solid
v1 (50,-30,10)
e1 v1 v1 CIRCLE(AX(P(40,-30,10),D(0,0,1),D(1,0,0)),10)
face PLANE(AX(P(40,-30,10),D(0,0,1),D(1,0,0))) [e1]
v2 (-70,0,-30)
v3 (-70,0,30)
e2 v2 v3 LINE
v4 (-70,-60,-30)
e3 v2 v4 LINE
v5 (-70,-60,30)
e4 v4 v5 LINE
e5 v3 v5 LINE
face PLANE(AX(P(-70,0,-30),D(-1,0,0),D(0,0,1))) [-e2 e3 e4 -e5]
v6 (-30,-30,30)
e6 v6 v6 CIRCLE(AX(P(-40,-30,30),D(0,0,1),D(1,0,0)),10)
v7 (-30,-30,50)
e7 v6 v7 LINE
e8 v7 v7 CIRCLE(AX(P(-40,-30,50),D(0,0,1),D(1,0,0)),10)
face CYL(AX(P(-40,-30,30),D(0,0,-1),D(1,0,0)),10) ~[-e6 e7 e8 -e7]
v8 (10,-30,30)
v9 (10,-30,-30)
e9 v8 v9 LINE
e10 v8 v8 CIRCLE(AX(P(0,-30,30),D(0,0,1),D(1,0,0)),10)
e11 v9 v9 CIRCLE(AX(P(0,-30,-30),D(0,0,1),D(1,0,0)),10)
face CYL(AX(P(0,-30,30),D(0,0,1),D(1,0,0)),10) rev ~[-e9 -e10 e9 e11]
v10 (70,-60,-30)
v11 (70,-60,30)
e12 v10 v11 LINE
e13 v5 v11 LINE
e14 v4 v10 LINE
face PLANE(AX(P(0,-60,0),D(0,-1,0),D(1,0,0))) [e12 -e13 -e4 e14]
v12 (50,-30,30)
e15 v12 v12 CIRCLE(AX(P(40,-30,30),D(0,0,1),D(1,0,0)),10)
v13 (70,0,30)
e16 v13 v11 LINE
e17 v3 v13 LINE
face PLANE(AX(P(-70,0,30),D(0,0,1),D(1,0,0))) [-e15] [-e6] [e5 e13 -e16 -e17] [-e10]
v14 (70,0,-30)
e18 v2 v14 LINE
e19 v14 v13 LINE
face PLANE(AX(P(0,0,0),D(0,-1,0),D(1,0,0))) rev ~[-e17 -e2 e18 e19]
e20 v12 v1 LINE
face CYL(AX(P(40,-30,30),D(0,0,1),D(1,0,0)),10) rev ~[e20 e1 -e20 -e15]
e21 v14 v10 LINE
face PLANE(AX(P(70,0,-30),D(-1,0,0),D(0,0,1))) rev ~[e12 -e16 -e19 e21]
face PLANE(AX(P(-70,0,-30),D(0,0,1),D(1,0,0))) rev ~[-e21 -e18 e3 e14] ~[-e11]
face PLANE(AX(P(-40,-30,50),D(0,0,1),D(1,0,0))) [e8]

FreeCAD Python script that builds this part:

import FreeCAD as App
import Part
import Sketcher

doc = App.newDocument("Part")
body = doc.addObject("PartDesign::Body", "Body")

# Sketch on XZ plane
sketch1 = body.newObject("Sketcher::SketchObject", "Sketch")
sketch1.AttachmentSupport = (doc.getObject("XZ_Plane"), [""])
sketch1.MapMode = "FlatFace"
sketch1.addGeometry([
    Part.LineSegment(App.Vector(-70, 30, 0), App.Vector(-70, -30, 0)),
    Part.LineSegment(App.Vector(-70, -30, 0), App.Vector(70, -30, 0)),
    Part.LineSegment(App.Vector(70, -30, 0), App.Vector(70, 30, 0)),
    Part.LineSegment(App.Vector(70, 30, 0), App.Vector(-70, 30, 0)),
], False)
sketch1.addConstraint([
    Sketcher.Constraint("Coincident", 0, 2, 1, 1),
    Sketcher.Constraint("Coincident", 1, 2, 2, 1),
    Sketcher.Constraint("Coincident", 2, 2, 3, 1),
    Sketcher.Constraint("Coincident", 3, 2, 0, 1),
    Sketcher.Constraint("Vertical", 0),
    Sketcher.Constraint("Horizontal", 1),
    Sketcher.Constraint("Vertical", 2),
    Sketcher.Constraint("Horizontal", 3),
    Sketcher.Constraint("Symmetric", 0, 2, 2, 2, -1, 1),
    Sketcher.Constraint("DistanceX", 1, 1, 1, 2, 140.0),
    Sketcher.Constraint("DistanceY", 0, 2, 0, 1, 60.0),
])
pad1 = body.newObject("PartDesign::Pad", "Pad")
pad1.Profile = sketch1
pad1.Length = 60

# Sketch on XY plane
sketch2 = body.newObject("Sketcher::SketchObject", "Sketch001")
sketch2.AttachmentSupport = (doc.getObject("XY_Plane"), [""])
sketch2.MapMode = "FlatFace"
sketch2.AttachmentOffset = App.Placement(App.Vector(0, 0, 30), App.Rotation())
sketch2.addGeometry(Part.Circle(App.Vector(-40, -30, 0), App.Vector(0, 0, 1), 10), False)
sketch2.addConstraint([
    Sketcher.Constraint("Diameter", 0, 20.0),
    Sketcher.Constraint("DistanceX", 0, 3, -1, 1, 40.0),
    Sketcher.Constraint("DistanceY", 0, 3, -1, 1, 30.0),
])
pad2 = body.newObject("PartDesign::Pad", "Pad001")
pad2.Profile = sketch2
pad2.Length = 20

# Sketch on XY plane
sketch3 = body.newObject("Sketcher::SketchObject", "Sketch002")
sketch3.AttachmentSupport = (doc.getObject("XY_Plane"), [""])
sketch3.MapMode = "FlatFace"
sketch3.AttachmentOffset = App.Placement(App.Vector(0, 0, 30), App.Rotation())
sketch3.addGeometry(Part.Circle(App.Vector(0, -30, 0), App.Vector(0, 0, 1), 10), False)
sketch3.addConstraint([
    Sketcher.Constraint("PointOnObject", 0, 3, -2),
    Sketcher.Constraint("Diameter", 0, 20.0),
    Sketcher.Constraint("DistanceY", 0, 3, -1, 1, 30.0),
])
pocket1 = body.newObject("PartDesign::Pocket", "Pocket")
pocket1.Profile = sketch3
pocket1.Length = 65

# Sketch on XY plane
sketch4 = body.newObject("Sketcher::SketchObject", "Sketch003")
sketch4.AttachmentSupport = (doc.getObject("XY_Plane"), [""])
sketch4.MapMode = "FlatFace"
sketch4.AttachmentOffset = App.Placement(App.Vector(0, 0, 30), App.Rotation())
sketch4.addGeometry(Part.Circle(App.Vector(40, -30, 0), App.Vector(0, 0, 1), 10), False)
sketch4.addConstraint([
    Sketcher.Constraint("Diameter", 0, 20.0),
    Sketcher.Constraint("DistanceX", -1, 1, 0, 3, 40.0),
    Sketcher.Constraint("DistanceY", 0, 3, -1, 1, 30.0),
])
pocket2 = body.newObject("PartDesign::Pocket", "Pocket001")
pocket2.Profile = sketch4
pocket2.Length = 20

doc.recompute()
